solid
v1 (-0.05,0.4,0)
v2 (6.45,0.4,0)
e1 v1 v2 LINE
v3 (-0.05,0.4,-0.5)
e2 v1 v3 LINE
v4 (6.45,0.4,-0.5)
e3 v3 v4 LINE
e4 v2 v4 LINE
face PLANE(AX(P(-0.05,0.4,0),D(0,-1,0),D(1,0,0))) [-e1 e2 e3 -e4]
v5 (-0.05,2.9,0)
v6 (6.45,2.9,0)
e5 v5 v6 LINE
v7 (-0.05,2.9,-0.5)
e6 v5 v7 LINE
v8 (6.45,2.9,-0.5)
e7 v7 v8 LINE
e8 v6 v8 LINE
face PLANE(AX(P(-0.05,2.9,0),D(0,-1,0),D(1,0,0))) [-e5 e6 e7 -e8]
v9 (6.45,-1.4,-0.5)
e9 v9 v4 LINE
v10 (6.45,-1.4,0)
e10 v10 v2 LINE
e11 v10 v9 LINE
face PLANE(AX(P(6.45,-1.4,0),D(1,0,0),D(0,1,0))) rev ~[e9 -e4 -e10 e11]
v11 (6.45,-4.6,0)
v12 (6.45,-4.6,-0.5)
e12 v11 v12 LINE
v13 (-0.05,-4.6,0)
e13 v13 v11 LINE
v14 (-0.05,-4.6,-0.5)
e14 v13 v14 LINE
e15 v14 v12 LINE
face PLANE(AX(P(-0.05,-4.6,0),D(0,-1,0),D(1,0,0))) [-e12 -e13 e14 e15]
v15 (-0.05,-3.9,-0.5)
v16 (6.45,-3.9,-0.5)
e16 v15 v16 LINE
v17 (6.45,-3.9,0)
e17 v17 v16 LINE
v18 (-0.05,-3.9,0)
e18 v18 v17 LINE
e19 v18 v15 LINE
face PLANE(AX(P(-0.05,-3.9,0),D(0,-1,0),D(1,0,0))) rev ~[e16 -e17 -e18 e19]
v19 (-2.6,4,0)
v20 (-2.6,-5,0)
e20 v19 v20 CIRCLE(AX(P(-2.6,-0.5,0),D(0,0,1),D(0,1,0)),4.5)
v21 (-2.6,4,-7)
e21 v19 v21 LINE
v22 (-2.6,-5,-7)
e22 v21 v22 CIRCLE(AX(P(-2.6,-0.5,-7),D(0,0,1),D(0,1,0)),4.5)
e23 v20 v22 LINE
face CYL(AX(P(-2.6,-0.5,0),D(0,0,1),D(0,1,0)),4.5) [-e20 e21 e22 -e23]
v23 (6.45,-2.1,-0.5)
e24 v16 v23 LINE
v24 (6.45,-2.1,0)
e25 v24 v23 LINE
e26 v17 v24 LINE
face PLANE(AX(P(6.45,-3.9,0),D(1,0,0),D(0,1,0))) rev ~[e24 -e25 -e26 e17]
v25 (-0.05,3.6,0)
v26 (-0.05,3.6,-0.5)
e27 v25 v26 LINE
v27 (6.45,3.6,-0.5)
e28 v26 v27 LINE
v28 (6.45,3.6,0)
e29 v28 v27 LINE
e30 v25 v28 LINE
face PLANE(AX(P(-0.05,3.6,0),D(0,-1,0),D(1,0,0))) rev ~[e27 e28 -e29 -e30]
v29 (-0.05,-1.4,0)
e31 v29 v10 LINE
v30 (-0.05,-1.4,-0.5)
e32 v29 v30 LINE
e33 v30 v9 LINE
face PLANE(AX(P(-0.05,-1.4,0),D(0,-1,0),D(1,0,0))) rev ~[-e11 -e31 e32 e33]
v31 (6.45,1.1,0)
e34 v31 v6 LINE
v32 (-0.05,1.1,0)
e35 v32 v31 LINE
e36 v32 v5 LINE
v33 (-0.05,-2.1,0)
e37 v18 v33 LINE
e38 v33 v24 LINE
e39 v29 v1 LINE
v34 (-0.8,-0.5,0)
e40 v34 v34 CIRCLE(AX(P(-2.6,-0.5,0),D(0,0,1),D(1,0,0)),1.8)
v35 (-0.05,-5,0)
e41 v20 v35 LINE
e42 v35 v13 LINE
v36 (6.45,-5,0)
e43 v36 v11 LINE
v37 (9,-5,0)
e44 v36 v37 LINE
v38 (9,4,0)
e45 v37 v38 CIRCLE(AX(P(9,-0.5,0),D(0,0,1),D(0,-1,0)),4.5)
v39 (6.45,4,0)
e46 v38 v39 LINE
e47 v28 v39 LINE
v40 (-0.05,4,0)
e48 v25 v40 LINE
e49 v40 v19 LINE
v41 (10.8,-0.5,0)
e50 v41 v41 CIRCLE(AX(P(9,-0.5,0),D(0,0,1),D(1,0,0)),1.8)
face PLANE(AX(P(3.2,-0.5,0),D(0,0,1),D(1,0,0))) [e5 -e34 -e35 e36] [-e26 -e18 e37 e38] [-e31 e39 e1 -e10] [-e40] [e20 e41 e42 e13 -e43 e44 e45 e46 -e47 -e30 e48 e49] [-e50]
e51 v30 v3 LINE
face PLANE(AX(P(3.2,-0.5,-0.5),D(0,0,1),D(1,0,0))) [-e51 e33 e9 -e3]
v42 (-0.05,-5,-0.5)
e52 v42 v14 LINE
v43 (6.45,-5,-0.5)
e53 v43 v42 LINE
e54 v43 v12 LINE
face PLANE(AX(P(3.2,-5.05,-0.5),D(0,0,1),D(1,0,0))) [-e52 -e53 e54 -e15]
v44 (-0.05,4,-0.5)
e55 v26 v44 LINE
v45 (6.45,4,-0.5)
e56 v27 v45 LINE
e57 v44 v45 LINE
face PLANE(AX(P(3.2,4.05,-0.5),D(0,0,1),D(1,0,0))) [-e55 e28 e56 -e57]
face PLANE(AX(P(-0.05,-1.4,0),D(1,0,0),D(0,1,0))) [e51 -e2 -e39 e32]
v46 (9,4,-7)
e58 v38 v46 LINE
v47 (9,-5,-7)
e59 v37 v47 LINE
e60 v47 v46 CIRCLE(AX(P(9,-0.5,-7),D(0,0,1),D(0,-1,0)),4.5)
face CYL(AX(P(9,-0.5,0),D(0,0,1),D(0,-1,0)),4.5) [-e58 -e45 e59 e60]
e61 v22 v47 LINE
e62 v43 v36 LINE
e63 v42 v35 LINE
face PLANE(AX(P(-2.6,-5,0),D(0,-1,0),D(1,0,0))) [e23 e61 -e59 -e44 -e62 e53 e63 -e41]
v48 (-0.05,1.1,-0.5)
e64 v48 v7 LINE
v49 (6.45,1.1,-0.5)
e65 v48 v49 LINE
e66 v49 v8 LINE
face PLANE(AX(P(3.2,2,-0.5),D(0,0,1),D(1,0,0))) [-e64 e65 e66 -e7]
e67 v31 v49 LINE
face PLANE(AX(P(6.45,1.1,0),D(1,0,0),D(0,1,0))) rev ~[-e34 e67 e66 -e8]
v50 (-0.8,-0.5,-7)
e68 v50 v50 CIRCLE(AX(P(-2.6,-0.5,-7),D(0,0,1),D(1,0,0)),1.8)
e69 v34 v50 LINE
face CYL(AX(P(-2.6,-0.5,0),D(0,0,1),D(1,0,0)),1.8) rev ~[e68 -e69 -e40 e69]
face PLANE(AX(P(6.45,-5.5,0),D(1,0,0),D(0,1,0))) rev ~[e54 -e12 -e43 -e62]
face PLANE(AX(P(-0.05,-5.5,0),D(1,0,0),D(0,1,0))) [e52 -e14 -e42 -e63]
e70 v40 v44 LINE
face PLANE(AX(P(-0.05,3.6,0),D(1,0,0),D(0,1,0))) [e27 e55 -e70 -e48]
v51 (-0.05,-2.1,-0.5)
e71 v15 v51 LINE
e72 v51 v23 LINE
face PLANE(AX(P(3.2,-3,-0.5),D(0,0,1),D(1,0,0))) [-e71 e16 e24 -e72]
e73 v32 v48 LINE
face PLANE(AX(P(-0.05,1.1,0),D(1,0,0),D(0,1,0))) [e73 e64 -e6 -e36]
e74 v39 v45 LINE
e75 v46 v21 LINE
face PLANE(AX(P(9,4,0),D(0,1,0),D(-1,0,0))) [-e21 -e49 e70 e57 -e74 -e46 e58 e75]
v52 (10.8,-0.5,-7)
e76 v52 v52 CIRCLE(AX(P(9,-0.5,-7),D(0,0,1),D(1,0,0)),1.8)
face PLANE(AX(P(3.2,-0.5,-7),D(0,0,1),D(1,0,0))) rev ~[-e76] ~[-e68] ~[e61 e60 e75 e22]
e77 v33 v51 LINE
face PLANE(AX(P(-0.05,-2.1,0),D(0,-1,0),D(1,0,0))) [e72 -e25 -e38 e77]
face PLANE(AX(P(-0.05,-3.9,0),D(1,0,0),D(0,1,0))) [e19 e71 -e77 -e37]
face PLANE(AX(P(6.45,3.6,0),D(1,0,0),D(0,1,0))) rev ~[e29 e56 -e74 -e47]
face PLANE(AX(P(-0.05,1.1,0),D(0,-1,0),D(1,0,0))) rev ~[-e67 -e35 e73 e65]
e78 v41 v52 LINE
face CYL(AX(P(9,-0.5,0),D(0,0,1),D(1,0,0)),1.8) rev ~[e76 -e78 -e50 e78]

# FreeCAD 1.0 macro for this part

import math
import FreeCAD as App
import Part
import Sketcher
Q = App.Units.Quantity

doc = App.newDocument("Part")
body = doc.addObject("PartDesign::Body", "Body")

# Sketch on XY plane
sketch1 = body.newObject("Sketcher::SketchObject", "Sketch")
sketch1.AttachmentSupport = (doc.getObject("XY_Plane"), [""])
sketch1.MapMode = "FlatFace"
sketch1.addGeometry(Part.LineSegment(App.Vector(9, 4, 0), App.Vector(-2.6, 4, 0)), False)
sketch1.addGeometry(Part.ArcOfCircle(Part.Circle(App.Vector(-2.6, -0.5, 0), App.Vector(0, 0, 1), 4.5), math.radians(90), math.radians(270)), False)
sketch1.addGeometry(Part.LineSegment(App.Vector(-2.6, -5, 0), App.Vector(9, -5, 0)), False)
sketch1.addGeometry(Part.ArcOfCircle(Part.Circle(App.Vector(9, -0.5, 0), App.Vector(0, 0, 1), 4.5), math.radians(-90), math.radians(90)), False)
sketch1.addConstraint(Sketcher.Constraint("Tangent", 0, 2, 1, 1))
sketch1.addConstraint(Sketcher.Constraint("Tangent", 1, 2, 2, 1))
sketch1.addConstraint(Sketcher.Constraint("Tangent", 2, 2, 3, 1))
sketch1.addConstraint(Sketcher.Constraint("Tangent", 3, 2, 0, 1))
sketch1.addConstraint(Sketcher.Constraint("Horizontal", 0))
sketch1.addConstraint(Sketcher.Constraint("Horizontal", 2))
sketch1.addConstraint(Sketcher.Constraint("Radius", 1, Q("4.5 mm")))
sketch1.addConstraint(Sketcher.Constraint("DistanceX", 0, 2, 0, 1, Q("11.6 mm")))
sketch1.addConstraint(Sketcher.Constraint("DistanceX", -1, 1, 3, 3, Q("9 mm")))
sketch1.addConstraint(Sketcher.Constraint("DistanceY", -1, 1, 0, 2, Q("4 mm")))
pad1 = body.newObject("PartDesign::Pad", "Pad")
pad1.Profile = sketch1
pad1.Length = 7
pad1.Reversed = True

# Sketch on XY plane
sketch2 = body.newObject("Sketcher::SketchObject", "Sketch001")
sketch2.AttachmentSupport = (doc.getObject("XY_Plane"), [""])
sketch2.MapMode = "FlatFace"
sketch2.addGeometry(Part.Circle(App.Vector(9, -0.5, 0), App.Vector(0, 0, 1), 1.8), False)
sketch2.addGeometry(Part.Circle(App.Vector(-2.6, -0.5, 0), App.Vector(0, 0, 1), 1.8), False)
sketch2.addConstraint(Sketcher.Constraint("Equal", 0, 1))
sketch2.addConstraint(Sketcher.Constraint("Horizontal", 0, 3, 1, 3))
sketch2.addConstraint(Sketcher.Constraint("Diameter", 0, Q("3.6 mm")))
sketch2.addConstraint(Sketcher.Constraint("DistanceX", -1, 1, 0, 3, Q("9 mm")))
sketch2.addConstraint(Sketcher.Constraint("DistanceY", 0, 3, -1, 1, Q("0.5 mm")))
sketch2.addConstraint(Sketcher.Constraint("DistanceX", 1, 3, -1, 1, Q("2.6 mm")))
pocket1 = body.newObject("PartDesign::Pocket", "Pocket")
pocket1.Profile = sketch2
pocket1.Type = "ThroughAll"

# Sketch on XY plane
sketch3 = body.newObject("Sketcher::SketchObject", "Sketch002")
sketch3.AttachmentSupport = (doc.getObject("XY_Plane"), [""])
sketch3.MapMode = "FlatFace"
sketch3.addGeometry(Part.LineSegment(App.Vector(0, 2.9, 0), App.Vector(0, 1.1, 0)), False)
sketch3.addGeometry(Part.LineSegment(App.Vector(0, 1.1, 0), App.Vector(6.5, 1.1, 0)), False)
sketch3.addGeometry(Part.LineSegment(App.Vector(6.5, 1.1, 0), App.Vector(6.5, 2.9, 0)), False)
sketch3.addGeometry(Part.LineSegment(App.Vector(6.5, 2.9, 0), App.Vector(0, 2.9, 0)), False)
sketch3.addGeometry(Part.LineSegment(App.Vector(0, -4.6, 0), App.Vector(0, -5.5, 0)), False)
sketch3.addGeometry(Part.LineSegment(App.Vector(0, -5.5, 0), App.Vector(6.5, -5.5, 0)), False)
sketch3.addGeometry(Part.LineSegment(App.Vector(6.5, -5.5, 0), App.Vector(6.5, -4.6, 0)), False)
sketch3.addGeometry(Part.LineSegment(App.Vector(6.5, -4.6, 0), App.Vector(0, -4.6, 0)), False)
sketch3.addGeometry(Part.LineSegment(App.Vector(0, 0.4, 0), App.Vector(0, -1.4, 0)), False)
sketch3.addGeometry(Part.LineSegment(App.Vector(0, -1.4, 0), App.Vector(6.5, -1.4, 0)), False)
sketch3.addGeometry(Part.LineSegment(App.Vector(6.5, -1.4, 0), App.Vector(6.5, 0.4, 0)), False)
sketch3.addGeometry(Part.LineSegment(App.Vector(6.5, 0.4, 0), App.Vector(0, 0.4, 0)), False)
sketch3.addGeometry(Part.LineSegment(App.Vector(0, -2.1, 0), App.Vector(0, -3.9, 0)), False)
sketch3.addGeometry(Part.LineSegment(App.Vector(0, -3.9, 0), App.Vector(6.5, -3.9, 0)), False)
sketch3.addGeometry(Part.LineSegment(App.Vector(6.5, -3.9, 0), App.Vector(6.5, -2.1, 0)), False)
sketch3.addGeometry(Part.LineSegment(App.Vector(6.5, -2.1, 0), App.Vector(0, -2.1, 0)), False)
sketch3.addGeometry(Part.LineSegment(App.Vector(0, 4.5, 0), App.Vector(0, 3.6, 0)), False)
sketch3.addGeometry(Part.LineSegment(App.Vector(0, 3.6, 0), App.Vector(6.5, 3.6, 0)), False)
sketch3.addGeometry(Part.LineSegment(App.Vector(6.5, 3.6, 0), App.Vector(6.5, 4.5, 0)), False)
sketch3.addGeometry(Part.LineSegment(App.Vector(6.5, 4.5, 0), App.Vector(0, 4.5, 0)), False)
sketch3.addConstraint(Sketcher.Constraint("Coincident", 0, 2, 1, 1))
sketch3.addConstraint(Sketcher.Constraint("Coincident", 1, 2, 2, 1))
sketch3.addConstraint(Sketcher.Constraint("Coincident", 2, 2, 3, 1))
sketch3.addConstraint(Sketcher.Constraint("Coincident", 3, 2, 0, 1))
sketch3.addConstraint(Sketcher.Constraint("Coincident", 4, 2, 5, 1))
sketch3.addConstraint(Sketcher.Constraint("Coincident", 5, 2, 6, 1))
sketch3.addConstraint(Sketcher.Constraint("Coincident", 6, 2, 7, 1))
sketch3.addConstraint(Sketcher.Constraint("Coincident", 7, 2, 4, 1))
sketch3.addConstraint(Sketcher.Constraint("Coincident", 8, 2, 9, 1))
sketch3.addConstraint(Sketcher.Constraint("Coincident", 9, 2, 10, 1))
sketch3.addConstraint(Sketcher.Constraint("Coincident", 10, 2, 11, 1))
sketch3.addConstraint(Sketcher.Constraint("Coincident", 11, 2, 8, 1))
sketch3.addConstraint(Sketcher.Constraint("Coincident", 12, 2, 13, 1))
sketch3.addConstraint(Sketcher.Constraint("Coincident", 13, 2, 14, 1))
sketch3.addConstraint(Sketcher.Constraint("Coincident", 14, 2, 15, 1))
sketch3.addConstraint(Sketcher.Constraint("Coincident", 15, 2, 12, 1))
sketch3.addConstraint(Sketcher.Constraint("Coincident", 16, 2, 17, 1))
sketch3.addConstraint(Sketcher.Constraint("Coincident", 17, 2, 18, 1))
sketch3.addConstraint(Sketcher.Constraint("Coincident", 18, 2, 19, 1))
sketch3.addConstraint(Sketcher.Constraint("Coincident", 19, 2, 16, 1))
sketch3.addConstraint(Sketcher.Constraint("Vertical", 0))
sketch3.addConstraint(Sketcher.Constraint("Horizontal", 1))
sketch3.addConstraint(Sketcher.Constraint("Vertical", 2))
sketch3.addConstraint(Sketcher.Constraint("Horizontal", 3))
sketch3.addConstraint(Sketcher.Constraint("Vertical", 4))
sketch3.addConstraint(Sketcher.Constraint("Horizontal", 5))
sketch3.addConstraint(Sketcher.Constraint("Vertical", 6))
sketch3.addConstraint(Sketcher.Constraint("Horizontal", 7))
sketch3.addConstraint(Sketcher.Constraint("Vertical", 8))
sketch3.addConstraint(Sketcher.Constraint("Horizontal", 9))
sketch3.addConstraint(Sketcher.Constraint("Vertical", 10))
sketch3.addConstraint(Sketcher.Constraint("Horizontal", 11))
sketch3.addConstraint(Sketcher.Constraint("Vertical", 12))
sketch3.addConstraint(Sketcher.Constraint("Horizontal", 13))
sketch3.addConstraint(Sketcher.Constraint("Vertical", 14))
sketch3.addConstraint(Sketcher.Constraint("Horizontal", 15))
sketch3.addConstraint(Sketcher.Constraint("Vertical", 16))
sketch3.addConstraint(Sketcher.Constraint("Horizontal", 17))
sketch3.addConstraint(Sketcher.Constraint("Vertical", 18))
sketch3.addConstraint(Sketcher.Constraint("Horizontal", 19))
sketch3.addConstraint(Sketcher.Constraint("Vertical", 3, 2, 4, 2))
sketch3.addConstraint(Sketcher.Constraint("Vertical", 2, 2, 5, 2))
sketch3.addConstraint(Sketcher.Constraint("Vertical", 7, 2, 8, 2))
sketch3.addConstraint(Sketcher.Constraint("Vertical", 6, 2, 9, 2))
sketch3.addConstraint(Sketcher.Constraint("Vertical", 11, 2, 12, 2))
sketch3.addConstraint(Sketcher.Constraint("Vertical", 10, 2, 13, 2))
sketch3.addConstraint(Sketcher.Constraint("Vertical", 15, 2, 16, 2))
sketch3.addConstraint(Sketcher.Constraint("Vertical", 14, 2, 17, 2))
sketch3.addConstraint(Sketcher.Constraint("Equal", 2, 8))
sketch3.addConstraint(Sketcher.Constraint("Equal", 10, 12))
sketch3.addConstraint(Sketcher.Constraint("Equal", 6, 16))
sketch3.addConstraint(Sketcher.Constraint("DistanceX", 1, 1, 1, 2, Q("6.5 mm")))
sketch3.addConstraint(Sketcher.Constraint("DistanceY", 0, 2, 0, 1, Q("1.8 mm")))
sketch3.addConstraint(Sketcher.Constraint("DistanceY", 4, 2, 4, 1, Q("0.9 mm")))
sketch3.addConstraint(Sketcher.Constraint("DistanceY", 6, 2, 10, 2, Q("5 mm")))
sketch3.addConstraint(Sketcher.Constraint("DistanceY", 12, 2, 0, 2, Q("5 mm")))
sketch3.addConstraint(Sketcher.Constraint("DistanceY", 8, 2, 16, 2, Q("5 mm")))
sketch3.addConstraint(Sketcher.Constraint("DistanceY", -1, 1, 0, 2, Q("1.1 mm")))
sketch3.addConstraint(Sketcher.Constraint("DistanceY", 4, 2, -1, 1, Q("5.5 mm")))
sketch3.addConstraint(Sketcher.Constraint("DistanceX", 0, 2, -1, 1, Q("0.05 mm")))
pocket2 = body.newObject("PartDesign::Pocket", "Pocket001")
pocket2.Profile = sketch3
pocket2.Length = 0.5

doc.recompute()
